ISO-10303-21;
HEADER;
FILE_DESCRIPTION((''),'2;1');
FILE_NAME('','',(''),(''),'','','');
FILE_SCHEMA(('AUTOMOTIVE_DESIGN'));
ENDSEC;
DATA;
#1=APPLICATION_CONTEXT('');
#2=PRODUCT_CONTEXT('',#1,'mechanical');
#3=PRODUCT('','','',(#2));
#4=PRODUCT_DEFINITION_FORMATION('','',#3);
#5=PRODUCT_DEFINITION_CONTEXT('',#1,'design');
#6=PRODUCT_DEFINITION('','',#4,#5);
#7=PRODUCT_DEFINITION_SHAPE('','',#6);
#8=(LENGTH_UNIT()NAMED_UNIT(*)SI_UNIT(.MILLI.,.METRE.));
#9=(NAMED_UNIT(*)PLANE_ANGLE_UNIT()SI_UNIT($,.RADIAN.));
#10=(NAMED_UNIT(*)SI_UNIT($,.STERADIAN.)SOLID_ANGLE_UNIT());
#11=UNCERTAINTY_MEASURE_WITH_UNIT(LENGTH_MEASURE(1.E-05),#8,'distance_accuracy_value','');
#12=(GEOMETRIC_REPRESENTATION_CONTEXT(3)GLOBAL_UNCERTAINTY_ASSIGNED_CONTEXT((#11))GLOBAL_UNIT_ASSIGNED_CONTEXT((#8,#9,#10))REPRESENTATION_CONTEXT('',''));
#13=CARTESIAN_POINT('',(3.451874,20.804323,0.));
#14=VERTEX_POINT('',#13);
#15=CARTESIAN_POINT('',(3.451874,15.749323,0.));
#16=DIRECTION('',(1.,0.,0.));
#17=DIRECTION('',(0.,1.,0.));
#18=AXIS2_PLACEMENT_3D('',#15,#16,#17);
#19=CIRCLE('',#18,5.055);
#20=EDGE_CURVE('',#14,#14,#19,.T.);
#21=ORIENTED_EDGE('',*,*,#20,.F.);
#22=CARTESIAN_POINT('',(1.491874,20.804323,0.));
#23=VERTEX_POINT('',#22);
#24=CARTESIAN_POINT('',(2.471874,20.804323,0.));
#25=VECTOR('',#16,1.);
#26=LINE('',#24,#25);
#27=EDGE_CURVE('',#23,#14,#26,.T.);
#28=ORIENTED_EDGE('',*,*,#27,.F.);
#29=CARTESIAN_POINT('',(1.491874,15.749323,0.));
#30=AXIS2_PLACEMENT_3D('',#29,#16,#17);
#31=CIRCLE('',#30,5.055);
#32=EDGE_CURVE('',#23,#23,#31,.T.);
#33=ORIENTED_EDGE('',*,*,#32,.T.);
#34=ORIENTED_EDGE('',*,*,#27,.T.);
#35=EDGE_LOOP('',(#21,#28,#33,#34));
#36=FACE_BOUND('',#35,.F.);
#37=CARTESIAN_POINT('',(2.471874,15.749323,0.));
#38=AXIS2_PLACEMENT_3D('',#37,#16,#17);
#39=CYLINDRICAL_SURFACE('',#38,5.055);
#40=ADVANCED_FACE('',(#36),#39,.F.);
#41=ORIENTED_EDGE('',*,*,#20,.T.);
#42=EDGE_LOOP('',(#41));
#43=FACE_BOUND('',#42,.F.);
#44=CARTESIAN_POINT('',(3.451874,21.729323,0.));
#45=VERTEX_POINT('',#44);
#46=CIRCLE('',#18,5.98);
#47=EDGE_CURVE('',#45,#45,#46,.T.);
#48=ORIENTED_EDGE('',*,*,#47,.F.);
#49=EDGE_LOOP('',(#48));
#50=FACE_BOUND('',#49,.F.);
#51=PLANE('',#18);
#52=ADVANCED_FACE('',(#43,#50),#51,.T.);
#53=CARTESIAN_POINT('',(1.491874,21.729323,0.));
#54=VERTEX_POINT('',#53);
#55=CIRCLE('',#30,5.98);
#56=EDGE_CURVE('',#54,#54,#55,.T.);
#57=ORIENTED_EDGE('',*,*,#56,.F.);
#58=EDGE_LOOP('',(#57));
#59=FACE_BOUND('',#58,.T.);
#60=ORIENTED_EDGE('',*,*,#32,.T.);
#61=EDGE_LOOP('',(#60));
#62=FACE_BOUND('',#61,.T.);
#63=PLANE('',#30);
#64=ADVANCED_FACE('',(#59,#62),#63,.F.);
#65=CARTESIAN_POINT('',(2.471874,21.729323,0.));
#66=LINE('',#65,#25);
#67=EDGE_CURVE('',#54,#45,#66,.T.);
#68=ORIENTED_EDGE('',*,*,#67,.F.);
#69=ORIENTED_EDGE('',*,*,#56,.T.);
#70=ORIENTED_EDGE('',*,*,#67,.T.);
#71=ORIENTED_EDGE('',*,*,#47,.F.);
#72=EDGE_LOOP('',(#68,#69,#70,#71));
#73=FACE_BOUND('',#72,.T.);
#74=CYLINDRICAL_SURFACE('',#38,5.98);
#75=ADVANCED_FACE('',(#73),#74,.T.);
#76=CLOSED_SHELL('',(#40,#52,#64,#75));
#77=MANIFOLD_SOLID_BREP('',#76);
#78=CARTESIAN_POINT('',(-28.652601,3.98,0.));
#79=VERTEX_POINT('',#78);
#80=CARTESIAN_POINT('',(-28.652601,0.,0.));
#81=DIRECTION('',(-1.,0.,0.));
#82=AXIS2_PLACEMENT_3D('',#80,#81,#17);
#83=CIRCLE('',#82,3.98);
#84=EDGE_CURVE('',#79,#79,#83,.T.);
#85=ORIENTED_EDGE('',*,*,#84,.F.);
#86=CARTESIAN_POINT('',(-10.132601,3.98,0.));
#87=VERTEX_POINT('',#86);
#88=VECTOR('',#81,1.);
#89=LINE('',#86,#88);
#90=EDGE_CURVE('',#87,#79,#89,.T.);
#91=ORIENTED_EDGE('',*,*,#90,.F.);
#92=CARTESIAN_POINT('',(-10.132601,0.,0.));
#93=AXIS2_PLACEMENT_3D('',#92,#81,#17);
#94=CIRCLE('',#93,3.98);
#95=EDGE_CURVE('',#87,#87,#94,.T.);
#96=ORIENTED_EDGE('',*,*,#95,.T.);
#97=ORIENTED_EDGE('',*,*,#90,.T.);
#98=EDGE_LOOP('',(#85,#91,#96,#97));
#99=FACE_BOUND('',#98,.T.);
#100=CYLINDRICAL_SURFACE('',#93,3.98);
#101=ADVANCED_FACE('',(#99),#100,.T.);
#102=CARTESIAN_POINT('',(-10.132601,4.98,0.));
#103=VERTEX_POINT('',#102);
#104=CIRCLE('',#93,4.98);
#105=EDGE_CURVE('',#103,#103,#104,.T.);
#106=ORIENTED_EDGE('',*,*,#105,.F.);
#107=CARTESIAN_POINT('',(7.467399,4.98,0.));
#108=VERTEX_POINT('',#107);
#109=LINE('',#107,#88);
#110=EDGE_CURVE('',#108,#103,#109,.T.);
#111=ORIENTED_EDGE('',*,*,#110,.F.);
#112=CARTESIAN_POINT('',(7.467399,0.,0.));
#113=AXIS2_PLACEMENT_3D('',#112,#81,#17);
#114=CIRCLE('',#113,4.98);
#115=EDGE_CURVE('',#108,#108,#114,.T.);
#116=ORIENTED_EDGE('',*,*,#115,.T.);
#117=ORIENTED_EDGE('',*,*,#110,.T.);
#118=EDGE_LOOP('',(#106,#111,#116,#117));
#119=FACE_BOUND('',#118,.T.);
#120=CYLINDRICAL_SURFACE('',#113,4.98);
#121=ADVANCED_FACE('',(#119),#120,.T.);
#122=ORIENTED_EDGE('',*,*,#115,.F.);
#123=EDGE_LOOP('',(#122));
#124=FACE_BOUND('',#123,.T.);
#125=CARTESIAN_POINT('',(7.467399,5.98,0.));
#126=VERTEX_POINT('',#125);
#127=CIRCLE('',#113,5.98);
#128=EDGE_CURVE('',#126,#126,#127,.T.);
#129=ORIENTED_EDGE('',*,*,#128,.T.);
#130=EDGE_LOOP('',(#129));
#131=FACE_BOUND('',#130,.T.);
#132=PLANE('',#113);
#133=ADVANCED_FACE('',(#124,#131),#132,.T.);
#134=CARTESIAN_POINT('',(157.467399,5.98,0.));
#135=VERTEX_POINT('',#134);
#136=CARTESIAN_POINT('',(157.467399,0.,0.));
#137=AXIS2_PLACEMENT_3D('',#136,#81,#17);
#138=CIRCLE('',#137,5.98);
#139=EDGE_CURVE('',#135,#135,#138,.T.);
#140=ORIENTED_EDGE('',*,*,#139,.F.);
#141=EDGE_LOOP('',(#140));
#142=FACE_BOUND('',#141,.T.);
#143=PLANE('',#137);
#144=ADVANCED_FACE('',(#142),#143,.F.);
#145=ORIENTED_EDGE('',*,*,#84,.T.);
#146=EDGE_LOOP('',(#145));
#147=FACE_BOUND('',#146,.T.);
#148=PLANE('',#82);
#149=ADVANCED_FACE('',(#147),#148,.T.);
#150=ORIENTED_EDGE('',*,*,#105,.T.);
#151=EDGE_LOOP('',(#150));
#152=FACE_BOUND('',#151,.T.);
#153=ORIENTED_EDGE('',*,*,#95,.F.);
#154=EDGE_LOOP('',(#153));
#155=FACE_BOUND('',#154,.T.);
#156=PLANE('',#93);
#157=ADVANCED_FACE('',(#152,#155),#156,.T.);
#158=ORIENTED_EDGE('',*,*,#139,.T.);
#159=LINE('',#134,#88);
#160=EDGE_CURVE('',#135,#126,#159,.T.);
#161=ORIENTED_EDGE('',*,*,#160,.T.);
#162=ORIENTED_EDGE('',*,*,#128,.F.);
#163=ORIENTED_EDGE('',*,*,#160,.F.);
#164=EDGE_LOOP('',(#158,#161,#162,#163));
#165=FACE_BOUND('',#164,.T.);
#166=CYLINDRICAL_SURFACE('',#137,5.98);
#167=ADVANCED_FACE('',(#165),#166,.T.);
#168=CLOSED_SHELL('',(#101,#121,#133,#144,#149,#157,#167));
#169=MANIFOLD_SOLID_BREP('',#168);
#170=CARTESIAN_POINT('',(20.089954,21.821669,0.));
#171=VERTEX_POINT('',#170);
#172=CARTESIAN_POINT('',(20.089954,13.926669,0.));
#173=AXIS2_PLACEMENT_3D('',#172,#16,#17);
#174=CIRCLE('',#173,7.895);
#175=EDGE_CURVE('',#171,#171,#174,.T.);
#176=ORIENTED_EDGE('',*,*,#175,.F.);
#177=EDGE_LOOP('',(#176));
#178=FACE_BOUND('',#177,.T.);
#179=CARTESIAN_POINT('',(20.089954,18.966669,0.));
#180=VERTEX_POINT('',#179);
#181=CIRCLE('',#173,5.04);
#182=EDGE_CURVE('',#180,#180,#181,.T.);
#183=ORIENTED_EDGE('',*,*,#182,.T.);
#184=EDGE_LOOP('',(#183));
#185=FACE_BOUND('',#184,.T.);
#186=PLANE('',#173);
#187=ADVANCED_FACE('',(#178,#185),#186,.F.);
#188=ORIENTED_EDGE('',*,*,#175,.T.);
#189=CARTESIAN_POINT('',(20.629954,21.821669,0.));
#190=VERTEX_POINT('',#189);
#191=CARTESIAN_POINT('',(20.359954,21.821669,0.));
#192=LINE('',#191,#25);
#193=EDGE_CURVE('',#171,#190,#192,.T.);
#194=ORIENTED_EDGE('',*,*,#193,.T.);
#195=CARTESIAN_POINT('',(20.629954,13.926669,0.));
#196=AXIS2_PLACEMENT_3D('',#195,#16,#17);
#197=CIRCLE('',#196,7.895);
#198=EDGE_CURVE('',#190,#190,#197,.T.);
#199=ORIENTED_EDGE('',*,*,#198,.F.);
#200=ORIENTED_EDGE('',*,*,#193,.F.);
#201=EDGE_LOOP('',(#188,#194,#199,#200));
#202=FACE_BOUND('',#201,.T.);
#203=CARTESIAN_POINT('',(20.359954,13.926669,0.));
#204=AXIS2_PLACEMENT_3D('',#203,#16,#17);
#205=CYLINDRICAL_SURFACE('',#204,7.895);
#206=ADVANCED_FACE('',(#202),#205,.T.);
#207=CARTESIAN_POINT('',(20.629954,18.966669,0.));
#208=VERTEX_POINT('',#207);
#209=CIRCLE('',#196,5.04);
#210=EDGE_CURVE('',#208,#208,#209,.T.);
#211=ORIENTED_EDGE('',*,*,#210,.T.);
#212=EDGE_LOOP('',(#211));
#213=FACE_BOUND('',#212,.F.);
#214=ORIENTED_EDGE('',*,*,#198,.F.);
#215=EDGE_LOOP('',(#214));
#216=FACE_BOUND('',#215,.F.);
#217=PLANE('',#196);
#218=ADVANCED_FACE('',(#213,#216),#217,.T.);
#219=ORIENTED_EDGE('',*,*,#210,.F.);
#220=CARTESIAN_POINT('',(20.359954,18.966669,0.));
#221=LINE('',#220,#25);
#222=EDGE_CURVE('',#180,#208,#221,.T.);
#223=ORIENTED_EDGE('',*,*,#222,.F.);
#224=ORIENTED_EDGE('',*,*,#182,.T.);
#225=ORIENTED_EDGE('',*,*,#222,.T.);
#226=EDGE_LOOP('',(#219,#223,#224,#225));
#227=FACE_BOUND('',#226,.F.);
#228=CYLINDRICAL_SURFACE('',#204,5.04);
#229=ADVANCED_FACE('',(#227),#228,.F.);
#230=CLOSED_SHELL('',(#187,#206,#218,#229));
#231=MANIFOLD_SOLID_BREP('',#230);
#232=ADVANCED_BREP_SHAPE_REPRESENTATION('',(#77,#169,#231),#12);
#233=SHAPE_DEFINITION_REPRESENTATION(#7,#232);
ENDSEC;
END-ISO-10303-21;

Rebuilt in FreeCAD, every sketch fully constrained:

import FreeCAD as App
import Part
import Sketcher

V = App.Vector
Q = App.Units.Quantity


def add_polygon(sketch, points):
    """Adds a closed chain of lines whose ends are joined by coincident constraints."""
    first, n = sketch.GeometryCount, len(points)
    for a, b in zip(points, points[1:] + points[:1]):
        sketch.addGeometry(Part.LineSegment(App.Vector(*a, 0), App.Vector(*b, 0)), False)
    for i in range(n):
        sketch.addConstraint(Sketcher.Constraint("Coincident", first + i, 2, first + (i + 1) % n, 1))

doc = App.newDocument("Part")
params = doc.addObject("Spreadsheet::Sheet", "Params")
for row, (alias, value) in enumerate([
    ("sketch1_width", "150 mm"),
    ("sketch1_height", "1 mm"),
    ("sketch1_width2", "17.6 mm"),
    ("sketch1_width3", "186.12 mm"),
    ("sketch1_height2", "3.98 mm"),
    ("revolution_angle", "360 deg"),
    ("sketch2_width", "1.96 mm"),
    ("revolution2_angle", "360 deg"),
    ("sketch3_width", "0.54 mm"),
    ("revolution3_angle", "360 deg"),
], start=1):
    params.set(f"A{row}", alias)
    params.set(f"B{row}", "=" + value)
    params.setAlias(f"B{row}", alias)

body = doc.addObject("PartDesign::Body", "Body")

# Sketch on XY plane
sketch1 = doc.addObject("Sketcher::SketchObject", "Sketch")
body.addObject(sketch1)
sketch1.AttachmentSupport = (doc.XY_Plane, [""])
sketch1.MapMode = "FlatFace"
add_polygon(sketch1, [(-28.7, 4), (-28.7, 0), (157.5, 0), (157.5, 6), (7.5, 6), (7.5, 5), (-10.1, 5), (-10.1, 4)])  # lines 0-7
sketch1.addConstraint(Sketcher.Constraint("Vertical", 0))
sketch1.addConstraint(Sketcher.Constraint("Horizontal", 1))
sketch1.addConstraint(Sketcher.Constraint("Vertical", 2))
sketch1.addConstraint(Sketcher.Constraint("Horizontal", 3))
sketch1.addConstraint(Sketcher.Constraint("Vertical", 4))
sketch1.addConstraint(Sketcher.Constraint("Horizontal", 5))
sketch1.addConstraint(Sketcher.Constraint("Vertical", 6))
sketch1.addConstraint(Sketcher.Constraint("Horizontal", 7))
sketch1.addConstraint(Sketcher.Constraint("PointOnObject", 0, 2, -1))
sketch1.addConstraint(Sketcher.Constraint("Equal", 4, 6))
sketch1.addConstraint(Sketcher.Constraint("DistanceX", 3, 2, 3, 1, Q("150 mm")))
sketch1.addConstraint(Sketcher.Constraint("DistanceY", 4, 2, 4, 1, Q("1 mm")))
sketch1.addConstraint(Sketcher.Constraint("DistanceX", 5, 2, 5, 1, Q("17.6 mm")))
sketch1.addConstraint(Sketcher.Constraint("DistanceX", 1, 1, 1, 2, Q("186.12 mm")))
sketch1.addConstraint(Sketcher.Constraint("DistanceY", 0, 2, 0, 1, Q("3.98 mm")))
sketch1.addConstraint(Sketcher.Constraint("DistanceX", 0, 2, -1, 1, Q("28.652601 mm")))
sketch1.setExpression("Constraints[18]", "Params.sketch1_width")
sketch1.setExpression("Constraints[19]", "Params.sketch1_height")
sketch1.setExpression("Constraints[20]", "Params.sketch1_width2")
sketch1.setExpression("Constraints[21]", "Params.sketch1_width3")
sketch1.setExpression("Constraints[22]", "Params.sketch1_height2")
revolution = doc.addObject("PartDesign::Revolution", "Revolution")
body.addObject(revolution)
revolution.Profile = sketch1
revolution.ReferenceAxis = (sketch1, ["H_Axis"])
revolution.setExpression("Angle", "Params.revolution_angle")
body2 = doc.addObject("PartDesign::Body", "Body001")

# Sketch on XY plane
sketch2 = doc.addObject("Sketcher::SketchObject", "Sketch001")
body2.addObject(sketch2)
sketch2.AttachmentSupport = (doc.getObject("XY_Plane001"), [""])
sketch2.MapMode = "FlatFace"
add_polygon(sketch2, [(1.5, 21.7), (1.5, 20.8), (3.5, 20.8), (3.5, 21.7)])  # lines 0-3
sketch2.addGeometry(Part.LineSegment(V(1.5, 15.7, 0), V(3.5, 15.7, 0)), True)  # axis
sketch2.addConstraint(Sketcher.Constraint("Vertical", 0))
sketch2.addConstraint(Sketcher.Constraint("Horizontal", 1))
sketch2.addConstraint(Sketcher.Constraint("Vertical", 2))
sketch2.addConstraint(Sketcher.Constraint("Horizontal", 3))
sketch2.addConstraint(Sketcher.Constraint("Horizontal", 4))
sketch2.addConstraint(Sketcher.Constraint("Vertical", 3, 2, 4, 1))
sketch2.addConstraint(Sketcher.Constraint("Vertical", 2, 2, 4, 2))
sketch2.addConstraint(Sketcher.Constraint("DistanceX", 1, 1, 1, 2, Q("1.96 mm")))
sketch2.addConstraint(Sketcher.Constraint("DistanceY", 0, 2, 0, 1, Q("0.925 mm")))
sketch2.addConstraint(Sketcher.Constraint("DistanceY", 4, 1, 3, 2, Q("5.98 mm")))
sketch2.addConstraint(Sketcher.Constraint("DistanceX", -1, 1, 0, 2, Q("1.491874 mm")))
sketch2.addConstraint(Sketcher.Constraint("DistanceY", -1, 1, 0, 2, Q("20.804323 mm")))
sketch2.setExpression("Constraints[11]", "Params.sketch2_width")
revolution2 = doc.addObject("PartDesign::Revolution", "Revolution001")
body2.addObject(revolution2)
revolution2.Profile = sketch2
revolution2.ReferenceAxis = (sketch2, ["Axis0"])
revolution2.setExpression("Angle", "Params.revolution2_angle")
body3 = doc.addObject("PartDesign::Body", "Body002")

# Sketch on XY plane
sketch3 = doc.addObject("Sketcher::SketchObject", "Sketch002")
body3.addObject(sketch3)
sketch3.AttachmentSupport = (doc.getObject("XY_Plane002"), [""])
sketch3.MapMode = "FlatFace"
add_polygon(sketch3, [(20.1, 21.8), (20.1, 19), (20.6, 19), (20.6, 21.8)])  # lines 0-3
sketch3.addGeometry(Part.LineSegment(V(20.1, 13.9, 0), V(20.6, 13.9, 0)), True)  # axis
sketch3.addConstraint(Sketcher.Constraint("Vertical", 0))
sketch3.addConstraint(Sketcher.Constraint("Horizontal", 1))
sketch3.addConstraint(Sketcher.Constraint("Vertical", 2))
sketch3.addConstraint(Sketcher.Constraint("Horizontal", 3))
sketch3.addConstraint(Sketcher.Constraint("Horizontal", 4))
sketch3.addConstraint(Sketcher.Constraint("Vertical", 3, 2, 4, 1))
sketch3.addConstraint(Sketcher.Constraint("Vertical", 2, 2, 4, 2))
sketch3.addConstraint(Sketcher.Constraint("DistanceX", 1, 1, 1, 2, Q("0.54 mm")))
sketch3.addConstraint(Sketcher.Constraint("DistanceY", 0, 2, 0, 1, Q("2.855 mm")))
sketch3.addConstraint(Sketcher.Constraint("DistanceY", 4, 1, 0, 2, Q("5.04 mm")))
sketch3.addConstraint(Sketcher.Constraint("DistanceY", -1, 1, 0, 2, Q("18.966669 mm")))
sketch3.addConstraint(Sketcher.Constraint("DistanceX", -1, 1, 0, 2, Q("20.089954 mm")))
sketch3.setExpression("Constraints[11]", "Params.sketch3_width")
revolution3 = doc.addObject("PartDesign::Revolution", "Revolution002")
body3.addObject(revolution3)
revolution3.Profile = sketch3
revolution3.ReferenceAxis = (sketch3, ["Axis0"])
revolution3.setExpression("Angle", "Params.revolution3_angle")

doc.recompute()
